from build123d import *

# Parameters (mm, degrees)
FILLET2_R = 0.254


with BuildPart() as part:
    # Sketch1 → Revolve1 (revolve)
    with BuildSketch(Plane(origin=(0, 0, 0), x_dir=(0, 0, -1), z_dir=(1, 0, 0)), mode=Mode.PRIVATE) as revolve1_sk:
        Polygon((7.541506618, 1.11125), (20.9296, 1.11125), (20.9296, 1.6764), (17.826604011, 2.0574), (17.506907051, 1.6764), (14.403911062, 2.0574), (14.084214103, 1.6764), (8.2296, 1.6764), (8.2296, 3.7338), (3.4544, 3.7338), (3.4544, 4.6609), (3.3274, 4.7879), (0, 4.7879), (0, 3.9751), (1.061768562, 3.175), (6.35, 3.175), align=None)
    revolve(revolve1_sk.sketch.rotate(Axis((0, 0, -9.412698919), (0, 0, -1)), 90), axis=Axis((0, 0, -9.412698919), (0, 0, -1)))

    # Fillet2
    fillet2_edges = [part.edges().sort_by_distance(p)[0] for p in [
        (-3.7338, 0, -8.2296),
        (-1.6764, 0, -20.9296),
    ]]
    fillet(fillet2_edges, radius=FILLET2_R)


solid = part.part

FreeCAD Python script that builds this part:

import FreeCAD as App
import Part
import Sketcher
from FreeCAD import Vector
Q = App.Units.Quantity


def edges_at(feature, points):
    """Names of the edges that pass closest to the given points."""
    edges = feature.Shape.Edges
    near = lambda p: min(range(len(edges)), key=lambda i: edges[i].distToShape(Part.Vertex(*p))[0])
    return sorted({f"Edge{near(p) + 1}" for p in points})


def add_polygon(sketch, points):
    """Adds a closed chain of lines whose ends are joined by coincident constraints."""
    first, n = sketch.GeometryCount, len(points)
    for a, b in zip(points, points[1:] + points[:1]):
        sketch.addGeometry(Part.LineSegment(App.Vector(*a, 0), App.Vector(*b, 0)), False)
    for i in range(n):
        sketch.addConstraint(Sketcher.Constraint("Coincident", first + i, 2, first + (i + 1) % n, 1))

doc = App.newDocument("Part")
body = doc.addObject("PartDesign::Body", "Body")

sketch1 = doc.addObject("Sketcher::SketchObject", "Sketch")
body.addObject(sketch1)
sketch1.AttachmentSupport = (doc.YZ_Plane, [""])
sketch1.MapMode = "FlatFace"
add_polygon(sketch1, [(1.11, -7.54), (1.11, -20.93), (1.68, -20.93), (2.06, -17.83), (1.68, -17.51), (2.06, -14.4), (1.68, -14.08), (1.68, -8.23), (3.73, -8.23), (3.73, -3.45), (4.66, -3.45), (4.79, -3.33), (4.79, 0), (3.98, 0), (3.17, -1.06), (3.17, -6.35)])
sketch1.addConstraint(Sketcher.Constraint("Vertical", 0))
sketch1.addConstraint(Sketcher.Constraint("Horizontal", 1))
sketch1.addConstraint(Sketcher.Constraint("Vertical", 6))
sketch1.addConstraint(Sketcher.Constraint("Horizontal", 7))
sketch1.addConstraint(Sketcher.Constraint("Vertical", 8))
sketch1.addConstraint(Sketcher.Constraint("Horizontal", 9))
sketch1.addConstraint(Sketcher.Constraint("Vertical", 11))
sketch1.addConstraint(Sketcher.Constraint("Horizontal", 12))
sketch1.addConstraint(Sketcher.Constraint("Vertical", 14))
sketch1.addConstraint(Sketcher.Constraint("PointOnObject", 11, 2, -1))
sketch1.addConstraint(Sketcher.Constraint("Parallel", 2, 4))
sketch1.addConstraint(Sketcher.Constraint("Parallel", 3, 5))
sketch1.addConstraint(Sketcher.Constraint("Vertical", 1, 2, 3, 2))
sketch1.addConstraint(Sketcher.Constraint("Vertical", 2, 2, 4, 2))
sketch1.addConstraint(Sketcher.Constraint("Vertical", 3, 2, 5, 2))
sketch1.addConstraint(Sketcher.Constraint("Angle", 2, Q("83 deg")))
sketch1.addConstraint(Sketcher.Constraint("Angle", 3, Q("140 deg")))
sketch1.addConstraint(Sketcher.Constraint("Angle", 10, Q("45 deg")))
sketch1.addConstraint(Sketcher.Constraint("Angle", 13, Q("-127 deg")))
sketch1.addConstraint(Sketcher.Constraint("Angle", 15, Q("-150 deg")))
sketch1.addConstraint(Sketcher.Constraint("DistanceY", 1, 2, 6, 2, Q("0.5 in")))
sketch1.addConstraint(Sketcher.Constraint("DistanceX", 7, 1, 7, 2, Q("0.081 in")))
sketch1.addConstraint(Sketcher.Constraint("DistanceX", 12, 2, 12, 1, Q("0.032 in")))
sketch1.addConstraint(Sketcher.Constraint("DistanceY", 8, 1, 8, 2, Q("0.188 in")))
sketch1.addConstraint(Sketcher.Constraint("DistanceY", 11, 1, 11, 2, Q("0.131 in")))
sketch1.addConstraint(Sketcher.Constraint("DistanceY", 14, 2, -1, 1, Q("0.25 in")))
sketch1.addConstraint(Sketcher.Constraint("DistanceX", 9, 1, 9, 2, Q("0.0365 in")))
sketch1.addConstraint(Sketcher.Constraint("DistanceY", 0, 2, -1, 1, Q("0.824 in")))
sketch1.addConstraint(Sketcher.Constraint("DistanceX", -1, 1, 1, 2, Q("0.066 in")))
sketch1.addConstraint(Sketcher.Constraint("DistanceX", -1, 1, 2, 2, Q("0.081 in")))
sketch1.addConstraint(Sketcher.Constraint("DistanceX", -1, 1, 13, 2, Q("0.125 in")))
sketch1.addConstraint(Sketcher.Constraint("DistanceX", 1, 1, 1, 2, Q("0.56515 mm")))
revolution = doc.addObject("PartDesign::Revolution", "Revolution")
body.addObject(revolution)
revolution.Profile = sketch1
revolution.ReferenceAxis = (sketch1, ["V_Axis"])
revolution.Angle = 360
doc.recompute()

fillet = doc.addObject("PartDesign::Fillet", "Fillet")
body.addObject(fillet)
fillet.Base = (revolution, edges_at(revolution, [(-3.734, 0, -8.23), (-1.676, 0, -20.93)]))
fillet.Radius = Q("0.01 in")

doc.recompute()
